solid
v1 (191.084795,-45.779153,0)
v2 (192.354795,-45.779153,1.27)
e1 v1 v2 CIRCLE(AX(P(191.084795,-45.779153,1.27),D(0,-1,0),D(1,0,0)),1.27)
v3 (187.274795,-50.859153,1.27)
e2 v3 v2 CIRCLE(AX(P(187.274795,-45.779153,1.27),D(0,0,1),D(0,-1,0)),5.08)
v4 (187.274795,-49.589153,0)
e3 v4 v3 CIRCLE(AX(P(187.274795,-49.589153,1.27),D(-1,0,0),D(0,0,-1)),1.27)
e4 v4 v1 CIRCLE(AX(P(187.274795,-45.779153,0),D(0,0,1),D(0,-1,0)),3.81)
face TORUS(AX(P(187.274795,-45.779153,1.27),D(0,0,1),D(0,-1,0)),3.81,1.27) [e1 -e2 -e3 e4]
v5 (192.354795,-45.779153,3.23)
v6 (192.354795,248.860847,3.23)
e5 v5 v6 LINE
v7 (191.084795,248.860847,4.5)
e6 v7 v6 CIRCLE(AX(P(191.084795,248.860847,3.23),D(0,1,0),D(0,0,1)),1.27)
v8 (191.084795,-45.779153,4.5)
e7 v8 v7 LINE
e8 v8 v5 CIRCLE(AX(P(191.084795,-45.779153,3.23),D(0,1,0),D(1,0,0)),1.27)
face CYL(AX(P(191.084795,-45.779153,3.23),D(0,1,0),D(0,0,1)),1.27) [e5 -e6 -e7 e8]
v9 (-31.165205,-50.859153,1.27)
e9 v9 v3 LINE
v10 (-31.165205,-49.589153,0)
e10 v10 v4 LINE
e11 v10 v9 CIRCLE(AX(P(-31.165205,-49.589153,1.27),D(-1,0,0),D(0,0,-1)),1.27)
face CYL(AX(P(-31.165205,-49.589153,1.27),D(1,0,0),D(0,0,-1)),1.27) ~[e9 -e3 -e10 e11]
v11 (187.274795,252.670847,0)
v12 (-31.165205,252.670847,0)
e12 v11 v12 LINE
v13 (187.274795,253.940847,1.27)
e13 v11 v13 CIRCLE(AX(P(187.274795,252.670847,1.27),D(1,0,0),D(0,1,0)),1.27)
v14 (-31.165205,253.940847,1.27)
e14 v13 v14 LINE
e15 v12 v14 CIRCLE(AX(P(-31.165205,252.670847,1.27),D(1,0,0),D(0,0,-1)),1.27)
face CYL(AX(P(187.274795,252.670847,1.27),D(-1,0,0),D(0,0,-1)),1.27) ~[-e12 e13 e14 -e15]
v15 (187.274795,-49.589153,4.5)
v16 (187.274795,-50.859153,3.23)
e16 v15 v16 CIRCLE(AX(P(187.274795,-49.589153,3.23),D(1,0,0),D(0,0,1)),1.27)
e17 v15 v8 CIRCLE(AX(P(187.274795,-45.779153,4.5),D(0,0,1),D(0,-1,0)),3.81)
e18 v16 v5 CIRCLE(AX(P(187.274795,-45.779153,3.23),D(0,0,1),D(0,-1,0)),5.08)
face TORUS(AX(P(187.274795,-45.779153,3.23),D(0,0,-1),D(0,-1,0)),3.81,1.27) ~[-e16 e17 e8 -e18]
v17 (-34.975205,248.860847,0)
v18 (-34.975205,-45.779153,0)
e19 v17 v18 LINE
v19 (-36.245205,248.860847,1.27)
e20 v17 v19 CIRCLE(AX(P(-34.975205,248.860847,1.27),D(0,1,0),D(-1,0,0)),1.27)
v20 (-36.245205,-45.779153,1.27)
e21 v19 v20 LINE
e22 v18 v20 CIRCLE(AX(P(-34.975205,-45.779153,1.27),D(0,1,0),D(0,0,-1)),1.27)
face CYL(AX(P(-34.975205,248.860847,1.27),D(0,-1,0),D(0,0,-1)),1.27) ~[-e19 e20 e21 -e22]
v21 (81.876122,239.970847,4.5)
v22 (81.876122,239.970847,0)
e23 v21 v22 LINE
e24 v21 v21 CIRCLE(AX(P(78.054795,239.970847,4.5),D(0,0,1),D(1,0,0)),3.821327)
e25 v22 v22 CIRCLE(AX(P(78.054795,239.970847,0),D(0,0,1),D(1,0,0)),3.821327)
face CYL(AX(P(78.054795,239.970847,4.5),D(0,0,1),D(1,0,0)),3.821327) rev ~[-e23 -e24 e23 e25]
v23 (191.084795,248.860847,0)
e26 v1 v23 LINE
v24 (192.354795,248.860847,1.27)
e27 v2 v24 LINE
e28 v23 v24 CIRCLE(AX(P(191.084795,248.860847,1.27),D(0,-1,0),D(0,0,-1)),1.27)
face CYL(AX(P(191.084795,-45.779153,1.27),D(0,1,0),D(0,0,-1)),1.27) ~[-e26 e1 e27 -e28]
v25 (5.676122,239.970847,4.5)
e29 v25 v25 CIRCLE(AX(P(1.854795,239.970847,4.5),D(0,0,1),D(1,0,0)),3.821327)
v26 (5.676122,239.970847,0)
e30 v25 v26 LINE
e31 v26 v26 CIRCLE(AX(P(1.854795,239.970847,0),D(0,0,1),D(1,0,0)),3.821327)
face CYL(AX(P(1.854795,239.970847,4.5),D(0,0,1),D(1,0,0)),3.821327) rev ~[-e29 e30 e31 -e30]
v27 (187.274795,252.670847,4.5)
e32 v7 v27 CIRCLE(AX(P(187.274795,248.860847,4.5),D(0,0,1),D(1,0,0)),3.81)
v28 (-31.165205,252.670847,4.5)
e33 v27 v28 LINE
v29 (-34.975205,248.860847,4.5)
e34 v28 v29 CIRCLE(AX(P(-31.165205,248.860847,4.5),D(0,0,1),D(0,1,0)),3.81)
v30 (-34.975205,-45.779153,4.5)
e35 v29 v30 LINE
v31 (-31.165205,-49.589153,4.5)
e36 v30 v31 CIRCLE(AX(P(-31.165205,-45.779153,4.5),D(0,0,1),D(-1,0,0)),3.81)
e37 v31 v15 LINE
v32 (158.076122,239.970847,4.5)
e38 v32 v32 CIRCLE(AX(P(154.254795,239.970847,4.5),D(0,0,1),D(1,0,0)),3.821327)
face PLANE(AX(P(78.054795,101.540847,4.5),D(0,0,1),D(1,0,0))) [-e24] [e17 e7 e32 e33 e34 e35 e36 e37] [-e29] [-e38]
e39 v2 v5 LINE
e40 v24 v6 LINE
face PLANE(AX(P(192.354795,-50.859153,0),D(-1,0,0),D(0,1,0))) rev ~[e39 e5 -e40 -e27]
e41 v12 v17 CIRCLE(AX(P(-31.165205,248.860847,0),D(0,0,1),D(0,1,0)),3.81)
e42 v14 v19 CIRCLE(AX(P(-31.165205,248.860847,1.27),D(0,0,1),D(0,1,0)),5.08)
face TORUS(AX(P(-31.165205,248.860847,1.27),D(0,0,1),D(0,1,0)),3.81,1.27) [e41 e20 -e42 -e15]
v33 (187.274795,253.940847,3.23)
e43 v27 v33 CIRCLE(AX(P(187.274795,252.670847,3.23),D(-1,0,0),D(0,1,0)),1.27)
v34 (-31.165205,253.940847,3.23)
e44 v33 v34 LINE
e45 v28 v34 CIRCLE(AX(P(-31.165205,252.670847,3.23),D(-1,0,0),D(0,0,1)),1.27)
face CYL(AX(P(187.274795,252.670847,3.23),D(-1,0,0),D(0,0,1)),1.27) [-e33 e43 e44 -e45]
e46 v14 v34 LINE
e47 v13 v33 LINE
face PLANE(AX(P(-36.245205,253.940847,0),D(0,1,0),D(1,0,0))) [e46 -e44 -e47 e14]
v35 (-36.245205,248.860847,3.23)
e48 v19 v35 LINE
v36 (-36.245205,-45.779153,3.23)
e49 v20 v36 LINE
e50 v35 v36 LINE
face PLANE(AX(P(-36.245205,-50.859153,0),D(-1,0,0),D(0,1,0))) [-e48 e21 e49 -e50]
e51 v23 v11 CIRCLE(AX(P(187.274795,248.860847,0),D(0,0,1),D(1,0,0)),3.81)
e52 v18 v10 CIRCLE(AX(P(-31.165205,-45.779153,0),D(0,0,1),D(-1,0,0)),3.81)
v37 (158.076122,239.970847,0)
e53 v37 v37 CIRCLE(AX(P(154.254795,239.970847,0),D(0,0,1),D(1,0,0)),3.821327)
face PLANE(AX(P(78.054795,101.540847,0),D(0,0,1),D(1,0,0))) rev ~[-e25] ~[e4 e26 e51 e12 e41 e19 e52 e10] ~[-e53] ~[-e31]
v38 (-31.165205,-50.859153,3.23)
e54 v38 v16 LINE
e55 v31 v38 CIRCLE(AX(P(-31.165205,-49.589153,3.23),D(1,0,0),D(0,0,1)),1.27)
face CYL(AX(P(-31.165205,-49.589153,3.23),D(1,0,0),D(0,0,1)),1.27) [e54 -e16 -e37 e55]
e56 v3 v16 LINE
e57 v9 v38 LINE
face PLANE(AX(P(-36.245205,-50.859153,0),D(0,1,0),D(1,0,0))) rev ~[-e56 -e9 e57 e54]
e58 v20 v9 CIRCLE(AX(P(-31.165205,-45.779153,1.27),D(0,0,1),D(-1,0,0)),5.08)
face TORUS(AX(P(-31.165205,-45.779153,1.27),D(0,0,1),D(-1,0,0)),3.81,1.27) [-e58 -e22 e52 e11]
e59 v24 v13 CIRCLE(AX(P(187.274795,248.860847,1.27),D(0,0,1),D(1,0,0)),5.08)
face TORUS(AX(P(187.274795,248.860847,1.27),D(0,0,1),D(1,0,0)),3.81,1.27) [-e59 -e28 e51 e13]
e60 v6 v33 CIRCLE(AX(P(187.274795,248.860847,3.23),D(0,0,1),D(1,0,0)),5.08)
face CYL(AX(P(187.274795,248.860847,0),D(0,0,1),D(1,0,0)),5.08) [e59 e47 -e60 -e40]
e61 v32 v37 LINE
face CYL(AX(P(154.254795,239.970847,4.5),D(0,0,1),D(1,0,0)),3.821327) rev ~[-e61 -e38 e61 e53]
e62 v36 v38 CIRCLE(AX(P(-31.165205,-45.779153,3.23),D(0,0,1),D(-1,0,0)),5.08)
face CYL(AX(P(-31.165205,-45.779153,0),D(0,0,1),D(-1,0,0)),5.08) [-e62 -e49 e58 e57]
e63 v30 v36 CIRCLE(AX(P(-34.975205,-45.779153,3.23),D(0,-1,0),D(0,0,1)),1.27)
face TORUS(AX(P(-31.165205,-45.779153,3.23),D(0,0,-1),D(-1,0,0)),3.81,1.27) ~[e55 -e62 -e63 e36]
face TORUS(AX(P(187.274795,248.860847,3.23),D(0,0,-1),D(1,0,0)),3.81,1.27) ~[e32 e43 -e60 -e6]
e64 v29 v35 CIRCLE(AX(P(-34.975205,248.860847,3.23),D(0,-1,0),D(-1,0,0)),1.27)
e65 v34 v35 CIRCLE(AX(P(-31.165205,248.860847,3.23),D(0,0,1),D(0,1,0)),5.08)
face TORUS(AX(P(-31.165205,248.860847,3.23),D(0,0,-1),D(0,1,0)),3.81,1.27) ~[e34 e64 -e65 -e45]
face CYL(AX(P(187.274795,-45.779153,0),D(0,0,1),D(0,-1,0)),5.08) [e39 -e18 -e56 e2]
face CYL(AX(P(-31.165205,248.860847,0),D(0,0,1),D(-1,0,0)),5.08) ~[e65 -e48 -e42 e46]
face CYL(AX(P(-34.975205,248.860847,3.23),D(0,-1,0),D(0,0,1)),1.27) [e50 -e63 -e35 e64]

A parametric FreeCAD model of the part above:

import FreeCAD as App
import Part
import Sketcher
Q = App.Units.Quantity


def edges_at(feature, points):
    """Names of the edges that pass closest to the given points."""
    edges = feature.Shape.Edges
    near = lambda p: min(range(len(edges)), key=lambda i: edges[i].distToShape(Part.Vertex(*p))[0])
    return sorted({f"Edge{near(p) + 1}" for p in points})

doc = App.newDocument("Part")
body = doc.addObject("PartDesign::Body", "Body")

sketch1 = body.newObject("Sketcher::SketchObject", "Sketch")
sketch1.AttachmentSupport = (doc.getObject("XY_Plane"), [""])
sketch1.MapMode = "FlatFace"
sketch1.addGeometry([
    Part.LineSegment(App.Vector(-36, 254, 0), App.Vector(-36, -51, 0)),
    Part.LineSegment(App.Vector(-36, -51, 0), App.Vector(192, -51, 0)),
    Part.LineSegment(App.Vector(192, -51, 0), App.Vector(192, 254, 0)),
    Part.LineSegment(App.Vector(192, 254, 0), App.Vector(-36, 254, 0)),
], False)
sketch1.addConstraint([
    Sketcher.Constraint("Coincident", 0, 2, 1, 1),
    Sketcher.Constraint("Coincident", 1, 2, 2, 1),
    Sketcher.Constraint("Coincident", 2, 2, 3, 1),
    Sketcher.Constraint("Coincident", 3, 2, 0, 1),
    Sketcher.Constraint("Vertical", 0),
    Sketcher.Constraint("Horizontal", 1),
    Sketcher.Constraint("Vertical", 2),
    Sketcher.Constraint("Horizontal", 3),
    Sketcher.Constraint("DistanceX", 1, 1, 1, 2, Q("9 in")),
    Sketcher.Constraint("DistanceY", 0, 2, 0, 1, Q("12 in")),
    Sketcher.Constraint("DistanceX", 0, 2, -1, 1, Q("36.245205 mm")),
    Sketcher.Constraint("DistanceY", 0, 2, -1, 1, Q("50.859153 mm")),
])
pad1 = body.newObject("PartDesign::Pad", "Pad")
pad1.Profile = sketch1
pad1.Length = 4.5
doc.recompute()

fillet = body.newObject("PartDesign::Fillet", "Fillet")
fillet.Base = (pad1, edges_at(pad1, [
    (-36.245, 253.941, 2.25),
    (192.355, 253.941, 2.25),
    (-36.245, -50.859, 2.25),
    (192.355, -50.859, 2.25),
]))
fillet.Radius = Q("0.2 in")
doc.recompute()

fillet2 = body.newObject("PartDesign::Fillet", "Fillet001")
fillet2.Base = (fillet, edges_at(fillet, [
    (78.055, -50.859, 0),
    (-31.165, -50.859, 2.25),
    (187.275, -50.859, 2.25),
    (78.055, -50.859, 4.5),
]))
fillet2.Radius = Q("0.05 in")

sketch2 = body.newObject("Sketcher::SketchObject", "Sketch001")
sketch2.AttachmentSupport = (doc.getObject("XY_Plane"), [""])
sketch2.MapMode = "FlatFace"
sketch2.AttachmentOffset = App.Placement(App.Vector(0, 0, 4.5), App.Rotation())
sketch2.addGeometry([
    Part.Circle(App.Vector(1.9, 240, 0), App.Vector(0, 0, 1), 3.8),
    Part.Circle(App.Vector(78.1, 240, 0), App.Vector(0, 0, 1), 3.8),
    Part.Circle(App.Vector(154.3, 240, 0), App.Vector(0, 0, 1), 3.8),
], False)
sketch2.addConstraint([
    Sketcher.Constraint("Equal", 0, 1),
    Sketcher.Constraint("Equal", 1, 2),
    Sketcher.Constraint("Horizontal", 0, 3, 1, 3),
    Sketcher.Constraint("Horizontal", 1, 3, 2, 3),
    Sketcher.Constraint("DistanceX", 0, 3, 1, 3, Q("3 in")),
    Sketcher.Constraint("DistanceX", 1, 3, 2, 3, Q("3 in")),
    Sketcher.Constraint("Diameter", 0, Q("7.642654 mm")),
    Sketcher.Constraint("DistanceX", -1, 1, 0, 3, Q("1.854795 mm")),
    Sketcher.Constraint("DistanceY", -1, 1, 0, 3, Q("239.970847 mm")),
])
pocket1 = body.newObject("PartDesign::Pocket", "Pocket")
pocket1.Profile = sketch2
pocket1.Length = 4.5

doc.recompute()
